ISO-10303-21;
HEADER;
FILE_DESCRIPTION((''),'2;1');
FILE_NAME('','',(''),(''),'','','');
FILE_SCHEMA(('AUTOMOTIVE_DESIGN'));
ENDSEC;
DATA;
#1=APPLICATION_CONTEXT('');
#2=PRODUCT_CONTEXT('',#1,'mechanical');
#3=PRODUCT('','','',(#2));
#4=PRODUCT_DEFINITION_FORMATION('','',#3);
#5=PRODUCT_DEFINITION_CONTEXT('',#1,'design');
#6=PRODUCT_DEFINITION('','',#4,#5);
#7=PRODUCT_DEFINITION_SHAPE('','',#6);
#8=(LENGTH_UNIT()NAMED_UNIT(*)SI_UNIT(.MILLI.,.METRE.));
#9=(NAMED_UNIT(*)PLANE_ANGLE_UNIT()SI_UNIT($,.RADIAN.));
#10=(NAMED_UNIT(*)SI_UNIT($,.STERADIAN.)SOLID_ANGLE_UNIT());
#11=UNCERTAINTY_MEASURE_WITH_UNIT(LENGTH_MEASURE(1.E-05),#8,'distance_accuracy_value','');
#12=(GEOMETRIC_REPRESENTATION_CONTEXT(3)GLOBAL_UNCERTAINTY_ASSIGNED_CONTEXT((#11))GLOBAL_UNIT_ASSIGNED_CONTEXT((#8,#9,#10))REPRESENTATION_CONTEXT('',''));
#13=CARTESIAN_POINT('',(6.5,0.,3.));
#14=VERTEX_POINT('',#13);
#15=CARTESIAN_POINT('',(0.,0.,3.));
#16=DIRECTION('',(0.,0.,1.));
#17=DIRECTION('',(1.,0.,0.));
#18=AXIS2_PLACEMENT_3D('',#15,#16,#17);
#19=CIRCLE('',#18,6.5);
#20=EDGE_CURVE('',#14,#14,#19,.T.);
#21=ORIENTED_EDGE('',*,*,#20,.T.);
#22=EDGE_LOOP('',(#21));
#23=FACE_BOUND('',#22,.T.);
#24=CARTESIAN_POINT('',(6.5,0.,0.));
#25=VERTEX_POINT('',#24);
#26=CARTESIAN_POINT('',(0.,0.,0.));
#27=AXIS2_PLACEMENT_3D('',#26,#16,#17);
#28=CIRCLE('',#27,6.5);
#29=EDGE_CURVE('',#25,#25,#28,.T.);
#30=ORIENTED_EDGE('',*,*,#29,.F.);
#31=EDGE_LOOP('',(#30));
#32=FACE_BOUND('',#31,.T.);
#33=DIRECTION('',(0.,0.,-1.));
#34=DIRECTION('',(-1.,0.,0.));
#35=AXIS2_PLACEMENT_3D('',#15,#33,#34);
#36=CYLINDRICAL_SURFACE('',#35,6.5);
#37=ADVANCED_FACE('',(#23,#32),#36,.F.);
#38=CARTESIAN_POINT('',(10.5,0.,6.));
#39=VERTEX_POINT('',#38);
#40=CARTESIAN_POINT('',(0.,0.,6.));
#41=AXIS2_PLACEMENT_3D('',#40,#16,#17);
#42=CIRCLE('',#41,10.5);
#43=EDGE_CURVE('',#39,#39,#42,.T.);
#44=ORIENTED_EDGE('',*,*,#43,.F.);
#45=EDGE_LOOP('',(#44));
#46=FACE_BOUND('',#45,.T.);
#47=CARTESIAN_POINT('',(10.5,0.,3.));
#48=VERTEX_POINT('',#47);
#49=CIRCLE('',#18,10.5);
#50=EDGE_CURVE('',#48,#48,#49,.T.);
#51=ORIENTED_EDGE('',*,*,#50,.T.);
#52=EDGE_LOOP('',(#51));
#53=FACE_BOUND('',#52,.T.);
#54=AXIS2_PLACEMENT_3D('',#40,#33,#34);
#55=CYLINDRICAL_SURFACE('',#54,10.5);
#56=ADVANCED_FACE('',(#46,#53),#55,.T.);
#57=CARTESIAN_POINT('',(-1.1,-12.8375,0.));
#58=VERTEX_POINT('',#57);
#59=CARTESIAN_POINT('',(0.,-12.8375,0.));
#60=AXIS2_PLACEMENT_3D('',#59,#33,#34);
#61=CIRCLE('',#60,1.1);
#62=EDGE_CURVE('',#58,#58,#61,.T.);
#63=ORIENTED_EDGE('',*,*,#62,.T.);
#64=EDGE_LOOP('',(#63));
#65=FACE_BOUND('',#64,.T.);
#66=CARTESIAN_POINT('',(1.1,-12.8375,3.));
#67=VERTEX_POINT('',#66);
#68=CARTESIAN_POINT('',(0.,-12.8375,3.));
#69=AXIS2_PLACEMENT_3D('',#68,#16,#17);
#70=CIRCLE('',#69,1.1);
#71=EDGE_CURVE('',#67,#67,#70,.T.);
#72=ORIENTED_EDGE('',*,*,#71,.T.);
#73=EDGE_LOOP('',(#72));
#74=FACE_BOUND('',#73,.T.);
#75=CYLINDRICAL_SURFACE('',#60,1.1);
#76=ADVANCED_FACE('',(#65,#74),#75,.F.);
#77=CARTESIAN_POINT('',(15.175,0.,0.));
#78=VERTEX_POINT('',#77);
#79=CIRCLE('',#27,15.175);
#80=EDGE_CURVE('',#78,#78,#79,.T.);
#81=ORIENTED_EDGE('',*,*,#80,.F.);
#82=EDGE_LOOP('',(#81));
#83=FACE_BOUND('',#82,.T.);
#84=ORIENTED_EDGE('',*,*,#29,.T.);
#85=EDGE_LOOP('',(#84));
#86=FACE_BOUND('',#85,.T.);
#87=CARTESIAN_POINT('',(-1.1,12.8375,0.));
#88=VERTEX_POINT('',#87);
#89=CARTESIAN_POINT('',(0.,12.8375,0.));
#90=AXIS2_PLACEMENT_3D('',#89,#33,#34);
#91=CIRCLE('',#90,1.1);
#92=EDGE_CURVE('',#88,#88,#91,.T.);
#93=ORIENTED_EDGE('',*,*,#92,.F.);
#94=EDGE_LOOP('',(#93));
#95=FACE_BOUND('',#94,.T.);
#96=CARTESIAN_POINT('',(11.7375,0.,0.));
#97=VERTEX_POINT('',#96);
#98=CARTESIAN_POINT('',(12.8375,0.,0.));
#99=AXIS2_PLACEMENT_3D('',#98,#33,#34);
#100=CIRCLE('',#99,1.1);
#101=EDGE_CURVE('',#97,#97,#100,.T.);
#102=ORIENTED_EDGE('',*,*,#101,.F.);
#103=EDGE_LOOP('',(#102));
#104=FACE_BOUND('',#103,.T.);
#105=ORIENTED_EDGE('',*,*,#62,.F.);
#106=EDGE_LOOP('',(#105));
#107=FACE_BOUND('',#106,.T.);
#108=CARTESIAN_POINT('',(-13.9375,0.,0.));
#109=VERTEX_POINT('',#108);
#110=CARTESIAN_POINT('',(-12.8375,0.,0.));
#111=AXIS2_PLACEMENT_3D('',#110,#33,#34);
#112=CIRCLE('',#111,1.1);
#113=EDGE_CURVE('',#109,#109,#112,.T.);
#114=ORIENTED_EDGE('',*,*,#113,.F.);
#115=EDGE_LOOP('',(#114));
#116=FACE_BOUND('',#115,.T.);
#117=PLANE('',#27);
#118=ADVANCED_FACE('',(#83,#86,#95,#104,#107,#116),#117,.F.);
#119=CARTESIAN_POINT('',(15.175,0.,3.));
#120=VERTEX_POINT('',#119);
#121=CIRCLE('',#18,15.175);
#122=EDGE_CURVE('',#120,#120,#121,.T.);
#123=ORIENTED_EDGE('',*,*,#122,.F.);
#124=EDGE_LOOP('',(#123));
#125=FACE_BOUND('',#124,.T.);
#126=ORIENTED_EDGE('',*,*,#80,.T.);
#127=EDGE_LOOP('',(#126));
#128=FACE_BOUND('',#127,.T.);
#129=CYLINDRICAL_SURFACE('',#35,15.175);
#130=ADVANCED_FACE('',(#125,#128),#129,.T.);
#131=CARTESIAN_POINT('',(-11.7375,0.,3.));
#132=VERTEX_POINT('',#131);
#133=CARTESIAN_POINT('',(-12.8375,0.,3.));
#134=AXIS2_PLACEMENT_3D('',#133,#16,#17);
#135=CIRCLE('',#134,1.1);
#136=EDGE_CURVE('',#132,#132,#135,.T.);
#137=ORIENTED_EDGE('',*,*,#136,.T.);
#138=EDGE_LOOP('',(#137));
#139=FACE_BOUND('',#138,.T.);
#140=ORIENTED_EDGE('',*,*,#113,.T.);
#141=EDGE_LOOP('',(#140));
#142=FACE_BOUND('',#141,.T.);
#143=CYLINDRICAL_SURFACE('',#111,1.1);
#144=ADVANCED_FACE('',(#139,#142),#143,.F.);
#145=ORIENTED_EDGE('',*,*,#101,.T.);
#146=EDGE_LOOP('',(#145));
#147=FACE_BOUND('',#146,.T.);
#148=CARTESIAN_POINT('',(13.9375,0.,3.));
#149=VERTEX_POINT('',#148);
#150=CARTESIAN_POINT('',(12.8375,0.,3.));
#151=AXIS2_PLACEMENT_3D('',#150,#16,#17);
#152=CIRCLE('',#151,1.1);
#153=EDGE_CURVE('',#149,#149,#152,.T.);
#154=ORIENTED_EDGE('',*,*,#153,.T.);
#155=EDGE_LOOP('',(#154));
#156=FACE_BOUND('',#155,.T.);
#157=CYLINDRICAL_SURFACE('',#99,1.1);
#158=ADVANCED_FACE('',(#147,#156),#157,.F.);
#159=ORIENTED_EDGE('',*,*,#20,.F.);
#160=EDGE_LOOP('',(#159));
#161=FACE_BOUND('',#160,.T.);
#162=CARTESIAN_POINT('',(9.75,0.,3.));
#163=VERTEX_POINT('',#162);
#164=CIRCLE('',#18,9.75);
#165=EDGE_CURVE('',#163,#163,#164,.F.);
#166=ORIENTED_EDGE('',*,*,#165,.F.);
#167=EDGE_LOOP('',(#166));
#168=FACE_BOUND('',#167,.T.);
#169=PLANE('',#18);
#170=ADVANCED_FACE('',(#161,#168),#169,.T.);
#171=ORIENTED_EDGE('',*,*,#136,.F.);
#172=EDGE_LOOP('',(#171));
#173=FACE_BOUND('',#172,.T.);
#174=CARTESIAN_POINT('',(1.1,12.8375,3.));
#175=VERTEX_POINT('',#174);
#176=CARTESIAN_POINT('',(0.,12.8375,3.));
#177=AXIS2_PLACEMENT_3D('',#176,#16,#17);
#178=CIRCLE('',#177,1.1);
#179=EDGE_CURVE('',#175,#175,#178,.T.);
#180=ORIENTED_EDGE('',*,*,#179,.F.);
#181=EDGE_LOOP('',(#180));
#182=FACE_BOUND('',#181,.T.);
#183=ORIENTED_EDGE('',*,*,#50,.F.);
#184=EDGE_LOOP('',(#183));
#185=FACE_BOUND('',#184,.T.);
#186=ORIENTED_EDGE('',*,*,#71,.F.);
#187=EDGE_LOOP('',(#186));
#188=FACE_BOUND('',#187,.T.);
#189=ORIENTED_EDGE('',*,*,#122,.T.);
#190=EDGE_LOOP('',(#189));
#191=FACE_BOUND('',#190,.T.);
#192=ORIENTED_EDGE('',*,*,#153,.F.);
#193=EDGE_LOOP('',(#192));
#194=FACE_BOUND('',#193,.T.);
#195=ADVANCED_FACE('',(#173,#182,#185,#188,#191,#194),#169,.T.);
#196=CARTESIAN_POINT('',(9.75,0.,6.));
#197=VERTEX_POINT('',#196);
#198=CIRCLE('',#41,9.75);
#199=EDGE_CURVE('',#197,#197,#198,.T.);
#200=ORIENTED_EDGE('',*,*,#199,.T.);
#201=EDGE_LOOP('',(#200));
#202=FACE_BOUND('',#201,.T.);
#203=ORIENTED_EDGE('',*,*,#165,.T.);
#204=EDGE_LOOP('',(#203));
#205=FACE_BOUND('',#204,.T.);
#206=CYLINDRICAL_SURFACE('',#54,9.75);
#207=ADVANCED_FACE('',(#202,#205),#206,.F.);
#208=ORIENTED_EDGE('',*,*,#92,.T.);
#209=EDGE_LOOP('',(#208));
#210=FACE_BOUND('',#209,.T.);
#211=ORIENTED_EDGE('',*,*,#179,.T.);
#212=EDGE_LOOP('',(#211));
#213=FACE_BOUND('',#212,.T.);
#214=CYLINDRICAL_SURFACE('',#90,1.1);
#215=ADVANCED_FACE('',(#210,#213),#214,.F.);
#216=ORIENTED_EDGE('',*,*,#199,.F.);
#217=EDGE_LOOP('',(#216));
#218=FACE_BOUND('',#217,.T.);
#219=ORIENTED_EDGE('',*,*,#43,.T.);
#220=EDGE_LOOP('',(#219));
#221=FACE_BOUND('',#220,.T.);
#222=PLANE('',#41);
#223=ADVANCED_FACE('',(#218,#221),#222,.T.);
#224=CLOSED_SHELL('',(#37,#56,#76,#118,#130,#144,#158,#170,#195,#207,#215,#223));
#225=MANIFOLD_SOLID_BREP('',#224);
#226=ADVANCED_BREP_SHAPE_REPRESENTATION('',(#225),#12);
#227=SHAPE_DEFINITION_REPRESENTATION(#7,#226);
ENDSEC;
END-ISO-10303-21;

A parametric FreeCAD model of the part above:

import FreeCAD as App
import Part
import Sketcher

doc = App.newDocument("Part")
body = doc.addObject("PartDesign::Body", "Body")

# Sketch on XY plane
sketch1 = doc.addObject("Sketcher::SketchObject", "Sketch")
body.addObject(sketch1)
sketch1.AttachmentSupport = (doc.XY_Plane, [""])
sketch1.MapMode = "FlatFace"
sketch1.addGeometry([
    Part.Circle(App.Vector(0, 0, 0), App.Vector(0, 0, 1), 15),
    Part.Circle(App.Vector(0, 0, 0), App.Vector(0, 0, 1), 6),
], False)
sketch1.addConstraint([
    Sketcher.Constraint("Coincident", 0, 3, -1, 1),
    Sketcher.Constraint("Coincident", 1, 3, -1, 1),
    Sketcher.Constraint("Diameter", 1, 13.0),
    Sketcher.Constraint("Diameter", 0, 30.35),
])
pad1 = doc.addObject("PartDesign::Pad", "Pad")
body.addObject(pad1)
pad1.Profile = sketch1
pad1.Length = 3

# Sketch on XY plane
sketch2 = doc.addObject("Sketcher::SketchObject", "Sketch001")
body.addObject(sketch2)
sketch2.AttachmentSupport = (doc.XY_Plane, [""])
sketch2.MapMode = "FlatFace"
sketch2.AttachmentOffset = App.Placement(App.Vector(0, 0, 3), App.Rotation())
sketch2.addGeometry([
    Part.Circle(App.Vector(0, 0, 0), App.Vector(0, 0, 1), 10),
    Part.Circle(App.Vector(0, 0, 0), App.Vector(0, 0, 1), 10),
], False)
sketch2.addConstraint([
    Sketcher.Constraint("Coincident", 0, 3, -1, 1),
    Sketcher.Constraint("Coincident", 1, 3, -1, 1),
    Sketcher.Constraint("Diameter", 0, 21.0),
    Sketcher.Constraint("Diameter", 1, 19.5),
])
pad2 = doc.addObject("PartDesign::Pad", "Pad001")
body.addObject(pad2)
pad2.Profile = sketch2
pad2.Length = 3

# Sketch on XY plane
sketch3 = doc.addObject("Sketcher::SketchObject", "Sketch002")
body.addObject(sketch3)
sketch3.AttachmentSupport = (doc.XY_Plane, [""])
sketch3.MapMode = "FlatFace"
sketch3.addGeometry([
    Part.Circle(App.Vector(0, 12.8, 0), App.Vector(0, 0, 1), 1.1),
    Part.Circle(App.Vector(-12.8, 0, 0), App.Vector(0, 0, 1), 1.1),
    Part.Circle(App.Vector(0, -12.8, 0), App.Vector(0, 0, 1), 1.1),
    Part.Circle(App.Vector(12.8, 0, 0), App.Vector(0, 0, 1), 1.1),
], False)
sketch3.addConstraint([
    Sketcher.Constraint("Equal", 0, 1),
    Sketcher.Constraint("Equal", 1, 2),
    Sketcher.Constraint("Equal", 2, 3),
    Sketcher.Constraint("Symmetric", 0, 3, 2, 3, -1, 1),
    Sketcher.Constraint("Symmetric", 1, 3, 3, 3, -1, 1),
    Sketcher.Constraint("PointOnObject", 0, 3, -2),
    Sketcher.Constraint("PointOnObject", 1, 3, -1),
    Sketcher.Constraint("Diameter", 0, 2.2),
    Sketcher.Constraint("DistanceY", 2, 3, 0, 3, 25.675),
    Sketcher.Constraint("DistanceX", 1, 3, 3, 3, 25.675),
])
doc.recompute()
hole = doc.addObject("PartDesign::Hole", "Hole")
body.addObject(hole)
hole.Profile = sketch3
hole.ThreadType = "None"
hole.Diameter = 2.2
hole.DepthType = "Dimension"
hole.Depth = 10
hole.DrillPoint = "Angled"
hole.DrillPointAngle = 118
hole.Reversed = True

doc.recompute()
